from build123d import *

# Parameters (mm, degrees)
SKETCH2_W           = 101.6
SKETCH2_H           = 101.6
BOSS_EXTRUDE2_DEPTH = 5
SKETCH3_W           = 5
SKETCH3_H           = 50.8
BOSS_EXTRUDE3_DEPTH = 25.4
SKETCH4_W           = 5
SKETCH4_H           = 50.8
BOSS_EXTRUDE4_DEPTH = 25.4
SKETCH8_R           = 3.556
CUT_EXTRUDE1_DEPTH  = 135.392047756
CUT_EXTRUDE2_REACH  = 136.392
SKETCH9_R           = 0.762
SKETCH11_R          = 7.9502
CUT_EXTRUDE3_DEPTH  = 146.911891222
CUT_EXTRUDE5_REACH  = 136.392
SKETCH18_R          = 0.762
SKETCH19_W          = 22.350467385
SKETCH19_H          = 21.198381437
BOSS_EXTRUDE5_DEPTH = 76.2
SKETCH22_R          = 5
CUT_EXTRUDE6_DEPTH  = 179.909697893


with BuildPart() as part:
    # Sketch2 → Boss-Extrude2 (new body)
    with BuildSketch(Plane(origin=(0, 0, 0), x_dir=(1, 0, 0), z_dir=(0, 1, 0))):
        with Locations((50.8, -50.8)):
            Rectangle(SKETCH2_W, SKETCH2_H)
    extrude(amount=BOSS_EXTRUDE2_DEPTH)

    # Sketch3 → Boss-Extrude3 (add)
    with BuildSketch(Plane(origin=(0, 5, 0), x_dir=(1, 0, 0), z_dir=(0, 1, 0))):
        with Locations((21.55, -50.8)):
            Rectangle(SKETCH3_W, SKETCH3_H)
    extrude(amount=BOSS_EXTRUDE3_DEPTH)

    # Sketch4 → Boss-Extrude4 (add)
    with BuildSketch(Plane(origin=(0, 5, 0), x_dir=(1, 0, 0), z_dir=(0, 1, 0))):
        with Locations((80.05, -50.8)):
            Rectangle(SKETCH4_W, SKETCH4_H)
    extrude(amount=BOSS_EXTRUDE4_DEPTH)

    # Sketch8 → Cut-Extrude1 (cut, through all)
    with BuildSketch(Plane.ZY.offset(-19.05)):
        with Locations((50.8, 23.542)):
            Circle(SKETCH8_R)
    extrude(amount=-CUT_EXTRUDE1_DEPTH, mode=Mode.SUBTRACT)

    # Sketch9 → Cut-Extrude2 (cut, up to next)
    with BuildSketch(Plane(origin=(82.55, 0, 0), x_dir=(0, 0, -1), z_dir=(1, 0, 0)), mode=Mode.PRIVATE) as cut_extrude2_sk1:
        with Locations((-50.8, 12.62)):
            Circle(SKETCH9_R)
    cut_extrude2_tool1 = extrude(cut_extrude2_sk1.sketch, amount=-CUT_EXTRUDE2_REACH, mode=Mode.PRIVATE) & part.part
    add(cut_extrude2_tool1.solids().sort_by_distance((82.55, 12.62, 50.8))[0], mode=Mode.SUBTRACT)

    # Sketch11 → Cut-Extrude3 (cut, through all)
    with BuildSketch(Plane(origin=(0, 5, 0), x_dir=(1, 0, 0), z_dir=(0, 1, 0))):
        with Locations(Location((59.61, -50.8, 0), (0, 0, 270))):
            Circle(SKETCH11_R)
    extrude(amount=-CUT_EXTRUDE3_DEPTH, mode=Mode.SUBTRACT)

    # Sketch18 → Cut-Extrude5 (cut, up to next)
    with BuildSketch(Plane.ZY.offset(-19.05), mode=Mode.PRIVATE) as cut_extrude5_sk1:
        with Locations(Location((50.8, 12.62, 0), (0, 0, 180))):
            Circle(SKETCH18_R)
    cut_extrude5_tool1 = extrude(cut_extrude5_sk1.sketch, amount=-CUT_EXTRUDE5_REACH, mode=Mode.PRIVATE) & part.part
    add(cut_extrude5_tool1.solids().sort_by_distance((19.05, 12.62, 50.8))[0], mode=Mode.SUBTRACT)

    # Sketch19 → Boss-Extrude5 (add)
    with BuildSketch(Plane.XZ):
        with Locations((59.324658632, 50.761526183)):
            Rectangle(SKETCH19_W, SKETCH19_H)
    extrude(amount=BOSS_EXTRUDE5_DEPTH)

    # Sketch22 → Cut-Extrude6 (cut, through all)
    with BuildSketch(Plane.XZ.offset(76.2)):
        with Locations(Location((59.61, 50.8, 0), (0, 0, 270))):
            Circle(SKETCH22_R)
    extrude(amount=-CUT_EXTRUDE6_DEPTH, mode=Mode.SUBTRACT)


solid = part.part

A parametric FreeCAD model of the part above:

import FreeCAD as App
import Part
import Sketcher
Q = App.Units.Quantity

doc = App.newDocument("Part")
params = doc.addObject("Spreadsheet::Sheet", "Params")
for row, (alias, value) in enumerate([
    ("sketch1_width", "4 in"),
    ("pad1_length", "5 mm"),
    ("sketch2_height", "2 in"),
    ("pad2_length", "1 in"),
    ("sketch3_height", "2 in"),
    ("pad3_length", "1 in"),
    ("sketch4_diameter", "0.28 in"),
    ("sketch5_diameter", "0.06 in"),
    ("sketch6_diameter", "0.626 in"),
    ("sketch7_diameter", "0.06 in"),
    ("pad4_length", "3 in"),
], start=1):
    params.set(f"A{row}", alias)
    params.set(f"B{row}", "=" + value)
    params.setAlias(f"B{row}", alias)

body = doc.addObject("PartDesign::Body", "Body")

# Sketch on XZ plane
sketch1 = doc.addObject("Sketcher::SketchObject", "Sketch")
body.addObject(sketch1)
sketch1.AttachmentSupport = (doc.XZ_Plane, [""])
sketch1.MapMode = "FlatFace"
sketch1.addGeometry(Part.LineSegment(App.Vector(0, 0, 0), App.Vector(0, 101.6, 0)), False)
sketch1.addGeometry(Part.LineSegment(App.Vector(0, 101.6, 0), App.Vector(101.6, 101.6, 0)), False)
sketch1.addGeometry(Part.LineSegment(App.Vector(101.6, 101.6, 0), App.Vector(101.6, 0, 0)), False)
sketch1.addGeometry(Part.LineSegment(App.Vector(101.6, 0, 0), App.Vector(0, 0, 0)), False)
sketch1.addConstraint(Sketcher.Constraint("Coincident", 0, 2, 1, 1))
sketch1.addConstraint(Sketcher.Constraint("Coincident", 1, 2, 2, 1))
sketch1.addConstraint(Sketcher.Constraint("Coincident", 2, 2, 3, 1))
sketch1.addConstraint(Sketcher.Constraint("Coincident", 3, 2, 0, 1))
sketch1.addConstraint(Sketcher.Constraint("Vertical", 0))
sketch1.addConstraint(Sketcher.Constraint("Horizontal", 1))
sketch1.addConstraint(Sketcher.Constraint("Vertical", 2))
sketch1.addConstraint(Sketcher.Constraint("Horizontal", 3))
sketch1.addConstraint(Sketcher.Constraint("Coincident", 3, 2, -1, 1))
sketch1.addConstraint(Sketcher.Constraint("Equal", 3, 0))
sketch1.addConstraint(Sketcher.Constraint("DistanceX", 1, 1, 1, 2, Q("4 in")))
sketch1.setExpression("Constraints[10]", "Params.sketch1_width")
pad1 = doc.addObject("PartDesign::Pad", "Pad")
body.addObject(pad1)
pad1.Profile = sketch1
pad1.setExpression("Length", "Params.pad1_length")
pad1.Reversed = True

# Sketch on XZ plane
sketch2 = doc.addObject("Sketcher::SketchObject", "Sketch001")
body.addObject(sketch2)
sketch2.AttachmentSupport = (doc.XZ_Plane, [""])
sketch2.MapMode = "FlatFace"
sketch2.AttachmentOffset = App.Placement(App.Vector(0, 0, -5), App.Rotation())
sketch2.addGeometry(Part.LineSegment(App.Vector(19.05, 25.4, 0), App.Vector(19.05, 76.2, 0)), False)
sketch2.addGeometry(Part.LineSegment(App.Vector(19.05, 76.2, 0), App.Vector(24.05, 76.2, 0)), False)
sketch2.addGeometry(Part.LineSegment(App.Vector(24.05, 76.2, 0), App.Vector(24.05, 25.4, 0)), False)
sketch2.addGeometry(Part.LineSegment(App.Vector(24.05, 25.4, 0), App.Vector(19.05, 25.4, 0)), False)
sketch2.addConstraint(Sketcher.Constraint("Coincident", 0, 2, 1, 1))
sketch2.addConstraint(Sketcher.Constraint("Coincident", 1, 2, 2, 1))
sketch2.addConstraint(Sketcher.Constraint("Coincident", 2, 2, 3, 1))
sketch2.addConstraint(Sketcher.Constraint("Coincident", 3, 2, 0, 1))
sketch2.addConstraint(Sketcher.Constraint("Vertical", 0))
sketch2.addConstraint(Sketcher.Constraint("Horizontal", 1))
sketch2.addConstraint(Sketcher.Constraint("Vertical", 2))
sketch2.addConstraint(Sketcher.Constraint("Horizontal", 3))
sketch2.addConstraint(Sketcher.Constraint("DistanceY", 0, 1, 0, 2, Q("2 in")))
sketch2.addConstraint(Sketcher.Constraint("DistanceY", -1, 1, 0, 2, Q("3 in")))
sketch2.addConstraint(Sketcher.Constraint("DistanceX", -1, 1, 0, 2, Q("0.75 in")))
sketch2.addConstraint(Sketcher.Constraint("DistanceX", 1, 1, 1, 2, 5.0))
sketch2.setExpression("Constraints[8]", "Params.sketch2_height")
pad2 = doc.addObject("PartDesign::Pad", "Pad001")
body.addObject(pad2)
pad2.Profile = sketch2
pad2.setExpression("Length", "Params.pad2_length")
pad2.Reversed = True

# Sketch on XZ plane
sketch3 = doc.addObject("Sketcher::SketchObject", "Sketch002")
body.addObject(sketch3)
sketch3.AttachmentSupport = (doc.XZ_Plane, [""])
sketch3.MapMode = "FlatFace"
sketch3.AttachmentOffset = App.Placement(App.Vector(0, 0, -5), App.Rotation())
sketch3.addGeometry(Part.LineSegment(App.Vector(77.55, 25.4, 0), App.Vector(77.55, 76.2, 0)), False)
sketch3.addGeometry(Part.LineSegment(App.Vector(77.55, 76.2, 0), App.Vector(82.55, 76.2, 0)), False)
sketch3.addGeometry(Part.LineSegment(App.Vector(82.55, 76.2, 0), App.Vector(82.55, 25.4, 0)), False)
sketch3.addGeometry(Part.LineSegment(App.Vector(82.55, 25.4, 0), App.Vector(77.55, 25.4, 0)), False)
sketch3.addConstraint(Sketcher.Constraint("Coincident", 0, 2, 1, 1))
sketch3.addConstraint(Sketcher.Constraint("Coincident", 1, 2, 2, 1))
sketch3.addConstraint(Sketcher.Constraint("Coincident", 2, 2, 3, 1))
sketch3.addConstraint(Sketcher.Constraint("Coincident", 3, 2, 0, 1))
sketch3.addConstraint(Sketcher.Constraint("Vertical", 0))
sketch3.addConstraint(Sketcher.Constraint("Horizontal", 1))
sketch3.addConstraint(Sketcher.Constraint("Vertical", 2))
sketch3.addConstraint(Sketcher.Constraint("Horizontal", 3))
sketch3.addConstraint(Sketcher.Constraint("DistanceY", 0, 1, 0, 2, Q("2 in")))
sketch3.addConstraint(Sketcher.Constraint("DistanceY", -1, 1, 0, 2, Q("3 in")))
sketch3.addConstraint(Sketcher.Constraint("DistanceX", -1, 1, 1, 2, Q("3.25 in")))
sketch3.addConstraint(Sketcher.Constraint("DistanceX", 1, 1, 1, 2, 5.0))
sketch3.setExpression("Constraints[8]", "Params.sketch3_height")
pad3 = doc.addObject("PartDesign::Pad", "Pad002")
body.addObject(pad3)
pad3.Profile = sketch3
pad3.setExpression("Length", "Params.pad3_length")
pad3.Reversed = True

# Sketch on YZ plane
sketch4 = doc.addObject("Sketcher::SketchObject", "Sketch003")
body.addObject(sketch4)
sketch4.AttachmentSupport = (doc.YZ_Plane, [""])
sketch4.MapMode = "FlatFace"
sketch4.AttachmentOffset = App.Placement(App.Vector(0, 0, 0.75 * 25.4), App.Rotation())
sketch4.addGeometry(Part.Circle(App.Vector(23.542, 50.8, 0), App.Vector(0, 0, 1), 3.556), False)
sketch4.addConstraint(Sketcher.Constraint("Diameter", 0, Q("0.28 in")))
sketch4.addConstraint(Sketcher.Constraint("DistanceY", -1, 1, 0, 3, Q("2 in")))
sketch4.addConstraint(Sketcher.Constraint("DistanceX", -1, 1, 0, 3, 23.542))
sketch4.setExpression("Constraints[0]", "Params.sketch4_diameter")
pocket1 = doc.addObject("PartDesign::Pocket", "Pocket")
body.addObject(pocket1)
pocket1.Profile = sketch4
pocket1.Type = "ThroughAll"
pocket1.Reversed = True

# Sketch on YZ plane
sketch5 = doc.addObject("Sketcher::SketchObject", "Sketch004")
body.addObject(sketch5)
sketch5.AttachmentSupport = (doc.YZ_Plane, [""])
sketch5.MapMode = "FlatFace"
sketch5.AttachmentOffset = App.Placement(App.Vector(0, 0, 3.25 * 25.4), App.Rotation())
sketch5.addGeometry(Part.Circle(App.Vector(12.62, 50.8, 0), App.Vector(0, 0, 1), 0.762), False)
sketch5.addConstraint(Sketcher.Constraint("Diameter", 0, Q("0.06 in")))
sketch5.addConstraint(Sketcher.Constraint("DistanceY", -1, 1, 0, 3, Q("2 in")))
sketch5.addConstraint(Sketcher.Constraint("DistanceX", -1, 1, 0, 3, 12.62))
sketch5.setExpression("Constraints[0]", "Params.sketch5_diameter")
pocket2 = doc.addObject("PartDesign::Pocket", "Pocket001")
body.addObject(pocket2)
pocket2.Profile = sketch5
pocket2.Type = "UpToFirst"

# Sketch on XZ plane
sketch6 = doc.addObject("Sketcher::SketchObject", "Sketch005")
body.addObject(sketch6)
sketch6.AttachmentSupport = (doc.XZ_Plane, [""])
sketch6.MapMode = "FlatFace"
sketch6.AttachmentOffset = App.Placement(App.Vector(0, 0, -5), App.Rotation())
sketch6.addGeometry(Part.Circle(App.Vector(59.61, 50.8, 0), App.Vector(0, 0, 1), 7.9502), False)
sketch6.addConstraint(Sketcher.Constraint("Diameter", 0, Q("0.626 in")))
sketch6.addConstraint(Sketcher.Constraint("DistanceY", -1, 1, 0, 3, Q("2 in")))
sketch6.addConstraint(Sketcher.Constraint("DistanceX", -1, 1, 0, 3, 59.61))
sketch6.setExpression("Constraints[0]", "Params.sketch6_diameter")
pocket3 = doc.addObject("PartDesign::Pocket", "Pocket002")
body.addObject(pocket3)
pocket3.Profile = sketch6
pocket3.Type = "ThroughAll"
pocket3.Reversed = True

# Sketch on YZ plane
sketch7 = doc.addObject("Sketcher::SketchObject", "Sketch006")
body.addObject(sketch7)
sketch7.AttachmentSupport = (doc.YZ_Plane, [""])
sketch7.MapMode = "FlatFace"
sketch7.AttachmentOffset = App.Placement(App.Vector(0, 0, 0.75 * 25.4), App.Rotation())
sketch7.addGeometry(Part.Circle(App.Vector(12.62, 50.8, 0), App.Vector(0, 0, 1), 0.762), False)
sketch7.addConstraint(Sketcher.Constraint("Diameter", 0, Q("0.06 in")))
sketch7.addConstraint(Sketcher.Constraint("DistanceY", -1, 1, 0, 3, Q("2 in")))
sketch7.addConstraint(Sketcher.Constraint("DistanceX", -1, 1, 0, 3, 12.62))
sketch7.setExpression("Constraints[0]", "Params.sketch7_diameter")
pocket4 = doc.addObject("PartDesign::Pocket", "Pocket003")
body.addObject(pocket4)
pocket4.Profile = sketch7
pocket4.Type = "UpToFirst"
pocket4.Reversed = True

# Sketch on XZ plane
sketch8 = doc.addObject("Sketcher::SketchObject", "Sketch007")
body.addObject(sketch8)
sketch8.AttachmentSupport = (doc.XZ_Plane, [""])
sketch8.MapMode = "FlatFace"
sketch8.addGeometry(Part.LineSegment(App.Vector(48.149425, 61.360717, 0), App.Vector(48.149425, 40.162335, 0)), False)
sketch8.addGeometry(Part.LineSegment(App.Vector(48.149425, 40.162335, 0), App.Vector(70.499892, 40.162335, 0)), False)
sketch8.addGeometry(Part.LineSegment(App.Vector(70.499892, 40.162335, 0), App.Vector(70.499892, 61.360717, 0)), False)
sketch8.addGeometry(Part.LineSegment(App.Vector(70.499892, 61.360717, 0), App.Vector(48.149425, 61.360717, 0)), False)
sketch8.addConstraint(Sketcher.Constraint("Coincident", 0, 2, 1, 1))
sketch8.addConstraint(Sketcher.Constraint("Coincident", 1, 2, 2, 1))
sketch8.addConstraint(Sketcher.Constraint("Coincident", 2, 2, 3, 1))
sketch8.addConstraint(Sketcher.Constraint("Coincident", 3, 2, 0, 1))
sketch8.addConstraint(Sketcher.Constraint("Vertical", 0))
sketch8.addConstraint(Sketcher.Constraint("Horizontal", 1))
sketch8.addConstraint(Sketcher.Constraint("Vertical", 2))
sketch8.addConstraint(Sketcher.Constraint("Horizontal", 3))
sketch8.addConstraint(Sketcher.Constraint("DistanceY", 0, 2, 0, 1, 21.198381))
sketch8.addConstraint(Sketcher.Constraint("DistanceX", 1, 1, 1, 2, 22.350467))
sketch8.addConstraint(Sketcher.Constraint("DistanceX", -1, 1, 0, 2, 48.149425))
sketch8.addConstraint(Sketcher.Constraint("DistanceY", -1, 1, 0, 2, 40.162335))
pad4 = doc.addObject("PartDesign::Pad", "Pad003")
body.addObject(pad4)
pad4.Profile = sketch8
pad4.setExpression("Length", "Params.pad4_length")

# Sketch on XZ plane
sketch9 = doc.addObject("Sketcher::SketchObject", "Sketch008")
body.addObject(sketch9)
sketch9.AttachmentSupport = (doc.XZ_Plane, [""])
sketch9.MapMode = "FlatFace"
sketch9.AttachmentOffset = App.Placement(App.Vector(0, 0, 3 * 25.4), App.Rotation())
sketch9.addGeometry(Part.Circle(App.Vector(59.61, 50.8, 0), App.Vector(0, 0, 1), 5), False)
sketch9.addConstraint(Sketcher.Constraint("DistanceY", -1, 1, 0, 3, Q("2 in")))
sketch9.addConstraint(Sketcher.Constraint("Diameter", 0, 10.0))
sketch9.addConstraint(Sketcher.Constraint("DistanceX", -1, 1, 0, 3, 59.61))
pocket5 = doc.addObject("PartDesign::Pocket", "Pocket004")
body.addObject(pocket5)
pocket5.Profile = sketch9
pocket5.Type = "ThroughAll"

doc.recompute()
